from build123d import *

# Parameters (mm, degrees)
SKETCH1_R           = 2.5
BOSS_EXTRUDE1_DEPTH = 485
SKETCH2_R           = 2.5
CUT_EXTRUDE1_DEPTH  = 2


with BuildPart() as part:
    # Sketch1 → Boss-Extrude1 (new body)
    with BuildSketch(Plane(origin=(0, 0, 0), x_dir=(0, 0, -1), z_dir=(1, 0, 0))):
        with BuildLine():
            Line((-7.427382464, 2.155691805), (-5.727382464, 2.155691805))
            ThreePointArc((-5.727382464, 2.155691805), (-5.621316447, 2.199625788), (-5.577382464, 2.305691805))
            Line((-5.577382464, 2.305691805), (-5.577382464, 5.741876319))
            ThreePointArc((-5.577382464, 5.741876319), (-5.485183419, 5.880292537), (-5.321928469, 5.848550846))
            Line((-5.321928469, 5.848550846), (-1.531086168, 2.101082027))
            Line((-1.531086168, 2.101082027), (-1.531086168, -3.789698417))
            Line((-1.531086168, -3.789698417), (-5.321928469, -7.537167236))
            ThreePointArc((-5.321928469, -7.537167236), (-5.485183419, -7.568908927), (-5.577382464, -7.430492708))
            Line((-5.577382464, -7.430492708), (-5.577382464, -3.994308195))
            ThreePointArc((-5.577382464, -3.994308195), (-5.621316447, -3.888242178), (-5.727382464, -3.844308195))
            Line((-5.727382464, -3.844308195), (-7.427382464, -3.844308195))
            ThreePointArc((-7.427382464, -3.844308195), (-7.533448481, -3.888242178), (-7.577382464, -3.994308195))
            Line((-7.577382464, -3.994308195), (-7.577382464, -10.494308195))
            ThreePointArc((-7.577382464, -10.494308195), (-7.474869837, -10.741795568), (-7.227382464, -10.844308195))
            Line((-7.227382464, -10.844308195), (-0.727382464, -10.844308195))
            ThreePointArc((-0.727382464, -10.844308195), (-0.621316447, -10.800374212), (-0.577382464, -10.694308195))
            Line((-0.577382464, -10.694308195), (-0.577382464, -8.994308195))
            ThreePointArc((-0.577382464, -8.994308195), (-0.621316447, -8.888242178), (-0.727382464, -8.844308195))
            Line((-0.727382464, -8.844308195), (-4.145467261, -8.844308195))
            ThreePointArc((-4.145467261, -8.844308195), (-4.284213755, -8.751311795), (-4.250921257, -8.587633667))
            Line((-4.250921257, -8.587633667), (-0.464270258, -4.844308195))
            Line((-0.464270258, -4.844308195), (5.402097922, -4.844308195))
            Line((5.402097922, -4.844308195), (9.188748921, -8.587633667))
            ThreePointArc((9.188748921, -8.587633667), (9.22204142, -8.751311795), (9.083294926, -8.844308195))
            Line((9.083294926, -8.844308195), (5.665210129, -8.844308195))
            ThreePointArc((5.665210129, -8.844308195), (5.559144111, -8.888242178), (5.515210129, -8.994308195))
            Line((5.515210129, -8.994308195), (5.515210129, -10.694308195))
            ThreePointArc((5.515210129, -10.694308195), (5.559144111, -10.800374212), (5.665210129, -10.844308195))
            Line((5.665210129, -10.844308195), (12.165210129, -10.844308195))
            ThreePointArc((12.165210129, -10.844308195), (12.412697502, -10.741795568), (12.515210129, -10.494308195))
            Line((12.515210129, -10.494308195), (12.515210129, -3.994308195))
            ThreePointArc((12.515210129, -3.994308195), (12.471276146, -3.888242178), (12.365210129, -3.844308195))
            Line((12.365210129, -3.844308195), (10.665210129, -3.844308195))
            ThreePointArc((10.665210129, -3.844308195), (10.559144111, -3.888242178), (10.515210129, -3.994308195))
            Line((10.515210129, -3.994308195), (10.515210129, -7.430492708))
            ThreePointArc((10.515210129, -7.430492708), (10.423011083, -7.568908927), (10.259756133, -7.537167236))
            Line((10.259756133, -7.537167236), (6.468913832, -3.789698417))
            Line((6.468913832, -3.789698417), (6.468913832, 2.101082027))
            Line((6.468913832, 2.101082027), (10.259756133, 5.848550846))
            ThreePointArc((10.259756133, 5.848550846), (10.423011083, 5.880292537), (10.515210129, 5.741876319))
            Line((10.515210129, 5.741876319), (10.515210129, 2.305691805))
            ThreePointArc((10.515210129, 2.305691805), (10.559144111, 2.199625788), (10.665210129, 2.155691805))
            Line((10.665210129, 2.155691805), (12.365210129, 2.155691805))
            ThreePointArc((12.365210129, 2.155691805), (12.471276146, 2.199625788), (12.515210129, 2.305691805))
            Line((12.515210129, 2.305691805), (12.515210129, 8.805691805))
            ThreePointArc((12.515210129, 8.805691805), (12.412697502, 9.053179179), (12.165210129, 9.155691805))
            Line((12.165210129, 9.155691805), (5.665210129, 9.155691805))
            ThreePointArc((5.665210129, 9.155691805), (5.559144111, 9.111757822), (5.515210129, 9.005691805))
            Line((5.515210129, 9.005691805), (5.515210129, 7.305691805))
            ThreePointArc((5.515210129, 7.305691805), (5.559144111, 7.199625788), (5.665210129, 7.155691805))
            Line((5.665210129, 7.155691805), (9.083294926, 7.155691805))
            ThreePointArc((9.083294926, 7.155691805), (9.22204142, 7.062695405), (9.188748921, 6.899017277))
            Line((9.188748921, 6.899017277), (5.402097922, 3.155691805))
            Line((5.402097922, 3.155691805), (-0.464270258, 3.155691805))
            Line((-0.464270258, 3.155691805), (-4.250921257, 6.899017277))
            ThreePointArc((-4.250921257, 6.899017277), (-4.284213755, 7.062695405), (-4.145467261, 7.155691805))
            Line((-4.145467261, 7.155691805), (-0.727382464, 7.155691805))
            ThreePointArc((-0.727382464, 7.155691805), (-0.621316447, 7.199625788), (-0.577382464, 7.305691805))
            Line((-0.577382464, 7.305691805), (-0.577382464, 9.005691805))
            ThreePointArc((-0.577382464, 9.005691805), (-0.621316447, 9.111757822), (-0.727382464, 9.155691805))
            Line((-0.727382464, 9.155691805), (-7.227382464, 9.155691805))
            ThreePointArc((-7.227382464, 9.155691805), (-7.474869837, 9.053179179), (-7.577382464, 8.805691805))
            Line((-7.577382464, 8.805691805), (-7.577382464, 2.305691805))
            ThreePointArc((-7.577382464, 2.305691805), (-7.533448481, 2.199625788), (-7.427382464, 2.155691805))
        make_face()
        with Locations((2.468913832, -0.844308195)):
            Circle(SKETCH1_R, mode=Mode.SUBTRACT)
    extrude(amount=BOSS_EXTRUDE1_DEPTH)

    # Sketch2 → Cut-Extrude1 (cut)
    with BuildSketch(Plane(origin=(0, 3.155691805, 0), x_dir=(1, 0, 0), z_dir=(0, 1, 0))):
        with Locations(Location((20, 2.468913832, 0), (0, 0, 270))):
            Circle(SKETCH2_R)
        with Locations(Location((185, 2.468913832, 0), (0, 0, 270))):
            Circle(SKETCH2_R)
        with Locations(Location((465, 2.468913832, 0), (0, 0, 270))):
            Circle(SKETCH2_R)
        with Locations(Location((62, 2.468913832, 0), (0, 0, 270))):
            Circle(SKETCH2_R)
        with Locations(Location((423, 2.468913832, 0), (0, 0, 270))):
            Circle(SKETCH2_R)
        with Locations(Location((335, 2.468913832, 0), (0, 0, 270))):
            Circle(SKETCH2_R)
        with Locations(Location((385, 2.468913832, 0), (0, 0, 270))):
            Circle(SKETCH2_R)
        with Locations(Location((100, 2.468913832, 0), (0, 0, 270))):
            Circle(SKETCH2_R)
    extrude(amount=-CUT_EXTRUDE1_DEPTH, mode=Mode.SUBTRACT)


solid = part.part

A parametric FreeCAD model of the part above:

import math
import FreeCAD as App
import Part
import Sketcher
from FreeCAD import Vector
Q = App.Units.Quantity

doc = App.newDocument("Part")
body = doc.addObject("PartDesign::Body", "Body")

sketch1 = body.newObject("Sketcher::SketchObject", "Sketch")
sketch1.AttachmentSupport = (doc.getObject("YZ_Plane"), [""])
sketch1.MapMode = "FlatFace"
sketch1.addGeometry(Part.LineSegment(Vector(2.16, 7.43, 0), Vector(2.16, 5.73, 0)), False)
sketch1.addGeometry(Part.ArcOfCircle(Part.Circle(Vector(2.31, 5.73, 0), Vector(0, 0, 1), 0.15), math.radians(-180), math.radians(-90)), False)
sketch1.addGeometry(Part.LineSegment(Vector(2.31, 5.58, 0), Vector(5.74, 5.58, 0)), False)
sketch1.addGeometry(Part.ArcOfCircle(Part.Circle(Vector(5.74, 5.43, 0), Vector(0, 0, 1), 0.15), math.radians(-45), math.radians(90)), False)
sketch1.addGeometry(Part.LineSegment(Vector(5.85, 5.32, 0), Vector(2.1, 1.53, 0)), False)
sketch1.addGeometry(Part.LineSegment(Vector(2.1, 1.53, 0), Vector(-3.79, 1.53, 0)), False)
sketch1.addGeometry(Part.LineSegment(Vector(-3.79, 1.53, 0), Vector(-7.54, 5.32, 0)), False)
sketch1.addGeometry(Part.ArcOfCircle(Part.Circle(Vector(-7.43, 5.43, 0), Vector(0, 0, 1), 0.15), math.radians(90), math.radians(225)), False)
sketch1.addGeometry(Part.LineSegment(Vector(-7.43, 5.58, 0), Vector(-3.99, 5.58, 0)), False)
sketch1.addGeometry(Part.ArcOfCircle(Part.Circle(Vector(-3.99, 5.73, 0), Vector(0, 0, 1), 0.15), math.radians(-90), math.radians(0)), False)
sketch1.addGeometry(Part.LineSegment(Vector(-3.84, 5.73, 0), Vector(-3.84, 7.43, 0)), False)
sketch1.addGeometry(Part.ArcOfCircle(Part.Circle(Vector(-3.99, 7.43, 0), Vector(0, 0, 1), 0.15), math.radians(0), math.radians(90)), False)
sketch1.addGeometry(Part.LineSegment(Vector(-3.99, 7.58, 0), Vector(-10.49, 7.58, 0)), False)
sketch1.addGeometry(Part.ArcOfCircle(Part.Circle(Vector(-10.49, 7.23, 0), Vector(0, 0, 1), 0.35), math.radians(90), math.radians(180)), False)
sketch1.addGeometry(Part.LineSegment(Vector(-10.84, 7.23, 0), Vector(-10.84, 0.73, 0)), False)
sketch1.addGeometry(Part.ArcOfCircle(Part.Circle(Vector(-10.69, 0.73, 0), Vector(0, 0, 1), 0.15), math.radians(-180), math.radians(-90)), False)
sketch1.addGeometry(Part.LineSegment(Vector(-10.69, 0.58, 0), Vector(-8.99, 0.58, 0)), False)
sketch1.addGeometry(Part.ArcOfCircle(Part.Circle(Vector(-8.99, 0.73, 0), Vector(0, 0, 1), 0.15), math.radians(-90), math.radians(0)), False)
sketch1.addGeometry(Part.LineSegment(Vector(-8.84, 0.73, 0), Vector(-8.84, 4.15, 0)), False)
sketch1.addGeometry(Part.ArcOfCircle(Part.Circle(Vector(-8.69, 4.15, 0), Vector(0, 0, 1), 0.15), math.radians(45), math.radians(180)), False)
sketch1.addGeometry(Part.LineSegment(Vector(-8.59, 4.25, 0), Vector(-4.84, 0.46, 0)), False)
sketch1.addGeometry(Part.LineSegment(Vector(-4.84, 0.46, 0), Vector(-4.84, -5.4, 0)), False)
sketch1.addGeometry(Part.LineSegment(Vector(-4.84, -5.4, 0), Vector(-8.59, -9.19, 0)), False)
sketch1.addGeometry(Part.ArcOfCircle(Part.Circle(Vector(-8.69, -9.08, 0), Vector(0, 0, 1), 0.15), math.radians(180), math.radians(315)), False)
sketch1.addGeometry(Part.LineSegment(Vector(-8.84, -9.08, 0), Vector(-8.84, -5.67, 0)), False)
sketch1.addGeometry(Part.ArcOfCircle(Part.Circle(Vector(-8.99, -5.67, 0), Vector(0, 0, 1), 0.15), math.radians(0), math.radians(90)), False)
sketch1.addGeometry(Part.LineSegment(Vector(-8.99, -5.52, 0), Vector(-10.69, -5.52, 0)), False)
sketch1.addGeometry(Part.ArcOfCircle(Part.Circle(Vector(-10.69, -5.67, 0), Vector(0, 0, 1), 0.15), math.radians(90), math.radians(180)), False)
sketch1.addGeometry(Part.LineSegment(Vector(-10.84, -5.67, 0), Vector(-10.84, -12.17, 0)), False)
sketch1.addGeometry(Part.ArcOfCircle(Part.Circle(Vector(-10.49, -12.17, 0), Vector(0, 0, 1), 0.35), math.radians(-180), math.radians(-90)), False)
sketch1.addGeometry(Part.LineSegment(Vector(-10.49, -12.52, 0), Vector(-3.99, -12.52, 0)), False)
sketch1.addGeometry(Part.ArcOfCircle(Part.Circle(Vector(-3.99, -12.37, 0), Vector(0, 0, 1), 0.15), math.radians(-90), math.radians(0)), False)
sketch1.addGeometry(Part.LineSegment(Vector(-3.84, -12.37, 0), Vector(-3.84, -10.67, 0)), False)
sketch1.addGeometry(Part.ArcOfCircle(Part.Circle(Vector(-3.99, -10.67, 0), Vector(0, 0, 1), 0.15), math.radians(0), math.radians(90)), False)
sketch1.addGeometry(Part.LineSegment(Vector(-3.99, -10.52, 0), Vector(-7.43, -10.52, 0)), False)
sketch1.addGeometry(Part.ArcOfCircle(Part.Circle(Vector(-7.43, -10.37, 0), Vector(0, 0, 1), 0.15), math.radians(135), math.radians(270)), False)
sketch1.addGeometry(Part.LineSegment(Vector(-7.54, -10.26, 0), Vector(-3.79, -6.47, 0)), False)
sketch1.addGeometry(Part.LineSegment(Vector(-3.79, -6.47, 0), Vector(2.1, -6.47, 0)), False)
sketch1.addGeometry(Part.LineSegment(Vector(2.1, -6.47, 0), Vector(5.85, -10.26, 0)), False)
sketch1.addGeometry(Part.ArcOfCircle(Part.Circle(Vector(5.74, -10.37, 0), Vector(0, 0, 1), 0.15), math.radians(-90), math.radians(45)), False)
sketch1.addGeometry(Part.LineSegment(Vector(5.74, -10.52, 0), Vector(2.31, -10.52, 0)), False)
sketch1.addGeometry(Part.ArcOfCircle(Part.Circle(Vector(2.31, -10.67, 0), Vector(0, 0, 1), 0.15), math.radians(90), math.radians(180)), False)
sketch1.addGeometry(Part.LineSegment(Vector(2.16, -10.67, 0), Vector(2.16, -12.37, 0)), False)
sketch1.addGeometry(Part.ArcOfCircle(Part.Circle(Vector(2.31, -12.37, 0), Vector(0, 0, 1), 0.15), math.radians(-180), math.radians(-90)), False)
sketch1.addGeometry(Part.LineSegment(Vector(2.31, -12.52, 0), Vector(8.81, -12.52, 0)), False)
sketch1.addGeometry(Part.ArcOfCircle(Part.Circle(Vector(8.81, -12.17, 0), Vector(0, 0, 1), 0.35), math.radians(-90), math.radians(0)), False)
sketch1.addGeometry(Part.LineSegment(Vector(9.16, -12.17, 0), Vector(9.16, -5.67, 0)), False)
sketch1.addGeometry(Part.ArcOfCircle(Part.Circle(Vector(9.01, -5.67, 0), Vector(0, 0, 1), 0.15), math.radians(0), math.radians(90)), False)
sketch1.addGeometry(Part.LineSegment(Vector(9.01, -5.52, 0), Vector(7.31, -5.52, 0)), False)
sketch1.addGeometry(Part.ArcOfCircle(Part.Circle(Vector(7.31, -5.67, 0), Vector(0, 0, 1), 0.15), math.radians(90), math.radians(180)), False)
sketch1.addGeometry(Part.LineSegment(Vector(7.16, -5.67, 0), Vector(7.16, -9.08, 0)), False)
sketch1.addGeometry(Part.ArcOfCircle(Part.Circle(Vector(7.01, -9.08, 0), Vector(0, 0, 1), 0.15), math.radians(-135), math.radians(0)), False)
sketch1.addGeometry(Part.LineSegment(Vector(6.9, -9.19, 0), Vector(3.16, -5.4, 0)), False)
sketch1.addGeometry(Part.LineSegment(Vector(3.16, -5.4, 0), Vector(3.16, 0.46, 0)), False)
sketch1.addGeometry(Part.LineSegment(Vector(3.16, 0.46, 0), Vector(6.9, 4.25, 0)), False)
sketch1.addGeometry(Part.ArcOfCircle(Part.Circle(Vector(7.01, 4.15, 0), Vector(0, 0, 1), 0.15), math.radians(0), math.radians(135)), False)
sketch1.addGeometry(Part.LineSegment(Vector(7.16, 4.15, 0), Vector(7.16, 0.73, 0)), False)
sketch1.addGeometry(Part.ArcOfCircle(Part.Circle(Vector(7.31, 0.73, 0), Vector(0, 0, 1), 0.15), math.radians(-180), math.radians(-90)), False)
sketch1.addGeometry(Part.LineSegment(Vector(7.31, 0.58, 0), Vector(9.01, 0.58, 0)), False)
sketch1.addGeometry(Part.ArcOfCircle(Part.Circle(Vector(9.01, 0.73, 0), Vector(0, 0, 1), 0.15), math.radians(-90), math.radians(0)), False)
sketch1.addGeometry(Part.LineSegment(Vector(9.16, 0.73, 0), Vector(9.16, 7.23, 0)), False)
sketch1.addGeometry(Part.ArcOfCircle(Part.Circle(Vector(8.81, 7.23, 0), Vector(0, 0, 1), 0.35), math.radians(0), math.radians(90)), False)
sketch1.addGeometry(Part.LineSegment(Vector(8.81, 7.58, 0), Vector(2.31, 7.58, 0)), False)
sketch1.addGeometry(Part.ArcOfCircle(Part.Circle(Vector(2.31, 7.43, 0), Vector(0, 0, 1), 0.15), math.radians(90), math.radians(180)), False)
sketch1.addGeometry(Part.Circle(Vector(-0.84, -2.47, 0), Vector(0, 0, 1), 2.5), False)
sketch1.addConstraint(Sketcher.Constraint("Tangent", 0, 2, 1, 1))
sketch1.addConstraint(Sketcher.Constraint("Tangent", 1, 2, 2, 1))
sketch1.addConstraint(Sketcher.Constraint("Tangent", 2, 2, 3, 2))
sketch1.addConstraint(Sketcher.Constraint("Tangent", 3, 1, 4, 1))
sketch1.addConstraint(Sketcher.Constraint("Coincident", 4, 2, 5, 1))
sketch1.addConstraint(Sketcher.Constraint("Coincident", 5, 2, 6, 1))
sketch1.addConstraint(Sketcher.Constraint("Tangent", 6, 2, 7, 2))
sketch1.addConstraint(Sketcher.Constraint("Tangent", 7, 1, 8, 1))
sketch1.addConstraint(Sketcher.Constraint("Tangent", 8, 2, 9, 1))
sketch1.addConstraint(Sketcher.Constraint("Tangent", 9, 2, 10, 1))
sketch1.addConstraint(Sketcher.Constraint("Tangent", 10, 2, 11, 1))
sketch1.addConstraint(Sketcher.Constraint("Tangent", 11, 2, 12, 1))
sketch1.addConstraint(Sketcher.Constraint("Tangent", 12, 2, 13, 1))
sketch1.addConstraint(Sketcher.Constraint("Tangent", 13, 2, 14, 1))
sketch1.addConstraint(Sketcher.Constraint("Tangent", 14, 2, 15, 1))
sketch1.addConstraint(Sketcher.Constraint("Tangent", 15, 2, 16, 1))
sketch1.addConstraint(Sketcher.Constraint("Tangent", 16, 2, 17, 1))
sketch1.addConstraint(Sketcher.Constraint("Tangent", 17, 2, 18, 1))
sketch1.addConstraint(Sketcher.Constraint("Tangent", 18, 2, 19, 2))
sketch1.addConstraint(Sketcher.Constraint("Tangent", 19, 1, 20, 1))
sketch1.addConstraint(Sketcher.Constraint("Coincident", 20, 2, 21, 1))
sketch1.addConstraint(Sketcher.Constraint("Coincident", 21, 2, 22, 1))
sketch1.addConstraint(Sketcher.Constraint("Tangent", 22, 2, 23, 2))
sketch1.addConstraint(Sketcher.Constraint("Tangent", 23, 1, 24, 1))
sketch1.addConstraint(Sketcher.Constraint("Tangent", 24, 2, 25, 1))
sketch1.addConstraint(Sketcher.Constraint("Tangent", 25, 2, 26, 1))
sketch1.addConstraint(Sketcher.Constraint("Tangent", 26, 2, 27, 1))
sketch1.addConstraint(Sketcher.Constraint("Tangent", 27, 2, 28, 1))
sketch1.addConstraint(Sketcher.Constraint("Tangent", 28, 2, 29, 1))
sketch1.addConstraint(Sketcher.Constraint("Tangent", 29, 2, 30, 1))
sketch1.addConstraint(Sketcher.Constraint("Tangent", 30, 2, 31, 1))
sketch1.addConstraint(Sketcher.Constraint("Tangent", 31, 2, 32, 1))
sketch1.addConstraint(Sketcher.Constraint("Tangent", 32, 2, 33, 1))
sketch1.addConstraint(Sketcher.Constraint("Tangent", 33, 2, 34, 1))
sketch1.addConstraint(Sketcher.Constraint("Tangent", 34, 2, 35, 2))
sketch1.addConstraint(Sketcher.Constraint("Tangent", 35, 1, 36, 1))
sketch1.addConstraint(Sketcher.Constraint("Coincident", 36, 2, 37, 1))
sketch1.addConstraint(Sketcher.Constraint("Coincident", 37, 2, 38, 1))
sketch1.addConstraint(Sketcher.Constraint("Tangent", 38, 2, 39, 2))
sketch1.addConstraint(Sketcher.Constraint("Tangent", 39, 1, 40, 1))
sketch1.addConstraint(Sketcher.Constraint("Tangent", 40, 2, 41, 1))
sketch1.addConstraint(Sketcher.Constraint("Tangent", 41, 2, 42, 1))
sketch1.addConstraint(Sketcher.Constraint("Tangent", 42, 2, 43, 1))
sketch1.addConstraint(Sketcher.Constraint("Tangent", 43, 2, 44, 1))
sketch1.addConstraint(Sketcher.Constraint("Tangent", 44, 2, 45, 1))
sketch1.addConstraint(Sketcher.Constraint("Tangent", 45, 2, 46, 1))
sketch1.addConstraint(Sketcher.Constraint("Tangent", 46, 2, 47, 1))
sketch1.addConstraint(Sketcher.Constraint("Tangent", 47, 2, 48, 1))
sketch1.addConstraint(Sketcher.Constraint("Tangent", 48, 2, 49, 1))
sketch1.addConstraint(Sketcher.Constraint("Tangent", 49, 2, 50, 1))
sketch1.addConstraint(Sketcher.Constraint("Tangent", 50, 2, 51, 2))
sketch1.addConstraint(Sketcher.Constraint("Tangent", 51, 1, 52, 1))
sketch1.addConstraint(Sketcher.Constraint("Coincident", 52, 2, 53, 1))
sketch1.addConstraint(Sketcher.Constraint("Coincident", 53, 2, 54, 1))
sketch1.addConstraint(Sketcher.Constraint("Tangent", 54, 2, 55, 2))
sketch1.addConstraint(Sketcher.Constraint("Tangent", 55, 1, 56, 1))
sketch1.addConstraint(Sketcher.Constraint("Tangent", 56, 2, 57, 1))
sketch1.addConstraint(Sketcher.Constraint("Tangent", 57, 2, 58, 1))
sketch1.addConstraint(Sketcher.Constraint("Tangent", 58, 2, 59, 1))
sketch1.addConstraint(Sketcher.Constraint("Tangent", 59, 2, 60, 1))
sketch1.addConstraint(Sketcher.Constraint("Tangent", 60, 2, 61, 1))
sketch1.addConstraint(Sketcher.Constraint("Tangent", 61, 2, 62, 1))
sketch1.addConstraint(Sketcher.Constraint("Tangent", 62, 2, 63, 1))
sketch1.addConstraint(Sketcher.Constraint("Tangent", 63, 2, 0, 1))
sketch1.addConstraint(Sketcher.Constraint("Vertical", 0))
sketch1.addConstraint(Sketcher.Constraint("Horizontal", 2))
sketch1.addConstraint(Sketcher.Constraint("Horizontal", 5))
sketch1.addConstraint(Sketcher.Constraint("Horizontal", 8))
sketch1.addConstraint(Sketcher.Constraint("Vertical", 10))
sketch1.addConstraint(Sketcher.Constraint("Horizontal", 12))
sketch1.addConstraint(Sketcher.Constraint("Vertical", 14))
sketch1.addConstraint(Sketcher.Constraint("Horizontal", 16))
sketch1.addConstraint(Sketcher.Constraint("Vertical", 18))
sketch1.addConstraint(Sketcher.Constraint("Vertical", 21))
sketch1.addConstraint(Sketcher.Constraint("Vertical", 24))
sketch1.addConstraint(Sketcher.Constraint("Horizontal", 26))
sketch1.addConstraint(Sketcher.Constraint("Vertical", 28))
sketch1.addConstraint(Sketcher.Constraint("Horizontal", 30))
sketch1.addConstraint(Sketcher.Constraint("Vertical", 32))
sketch1.addConstraint(Sketcher.Constraint("Horizontal", 34))
sketch1.addConstraint(Sketcher.Constraint("Horizontal", 37))
sketch1.addConstraint(Sketcher.Constraint("Horizontal", 40))
sketch1.addConstraint(Sketcher.Constraint("Vertical", 42))
sketch1.addConstraint(Sketcher.Constraint("Horizontal", 44))
sketch1.addConstraint(Sketcher.Constraint("Vertical", 46))
sketch1.addConstraint(Sketcher.Constraint("Horizontal", 48))
sketch1.addConstraint(Sketcher.Constraint("Vertical", 50))
sketch1.addConstraint(Sketcher.Constraint("Vertical", 53))
sketch1.addConstraint(Sketcher.Constraint("Vertical", 56))
sketch1.addConstraint(Sketcher.Constraint("Horizontal", 58))
sketch1.addConstraint(Sketcher.Constraint("Vertical", 60))
sketch1.addConstraint(Sketcher.Constraint("Horizontal", 62))
sketch1.addConstraint(Sketcher.Constraint("Equal", 1, 3))
sketch1.addConstraint(Sketcher.Constraint("Equal", 3, 7))
sketch1.addConstraint(Sketcher.Constraint("Equal", 7, 9))
sketch1.addConstraint(Sketcher.Constraint("Equal", 9, 11))
sketch1.addConstraint(Sketcher.Constraint("Equal", 11, 15))
sketch1.addConstraint(Sketcher.Constraint("Equal", 15, 17))
sketch1.addConstraint(Sketcher.Constraint("Equal", 17, 19))
sketch1.addConstraint(Sketcher.Constraint("Equal", 19, 23))
sketch1.addConstraint(Sketcher.Constraint("Equal", 23, 25))
sketch1.addConstraint(Sketcher.Constraint("Equal", 25, 27))
sketch1.addConstraint(Sketcher.Constraint("Equal", 13, 29))
sketch1.addConstraint(Sketcher.Constraint("Equal", 27, 31))
sketch1.addConstraint(Sketcher.Constraint("Equal", 31, 33))
sketch1.addConstraint(Sketcher.Constraint("Equal", 33, 35))
sketch1.addConstraint(Sketcher.Constraint("Equal", 35, 39))
sketch1.addConstraint(Sketcher.Constraint("Equal", 39, 41))
sketch1.addConstraint(Sketcher.Constraint("Equal", 41, 43))
sketch1.addConstraint(Sketcher.Constraint("Equal", 29, 45))
sketch1.addConstraint(Sketcher.Constraint("Equal", 43, 47))
sketch1.addConstraint(Sketcher.Constraint("Equal", 47, 49))
sketch1.addConstraint(Sketcher.Constraint("Equal", 49, 51))
sketch1.addConstraint(Sketcher.Constraint("Equal", 51, 55))
sketch1.addConstraint(Sketcher.Constraint("Equal", 55, 57))
sketch1.addConstraint(Sketcher.Constraint("Equal", 57, 59))
sketch1.addConstraint(Sketcher.Constraint("Equal", 45, 61))
sketch1.addConstraint(Sketcher.Constraint("Equal", 59, 63))
sketch1.addConstraint(Sketcher.Constraint("Parallel", 6, 20))
sketch1.addConstraint(Sketcher.Constraint("Parallel", 4, 22))
sketch1.addConstraint(Sketcher.Constraint("Parallel", 22, 36))
sketch1.addConstraint(Sketcher.Constraint("Parallel", 20, 38))
sketch1.addConstraint(Sketcher.Constraint("Parallel", 38, 52))
sketch1.addConstraint(Sketcher.Constraint("Parallel", 36, 54))
sketch1.addConstraint(Sketcher.Constraint("Horizontal", 3, 3, 7, 3))
sketch1.addConstraint(Sketcher.Constraint("Horizontal", 35, 3, 39, 3))
sketch1.addConstraint(Sketcher.Constraint("Horizontal", 31, 3, 43, 3))
sketch1.addConstraint(Sketcher.Constraint("Horizontal", 27, 3, 47, 3))
sketch1.addConstraint(Sketcher.Constraint("Horizontal", 23, 3, 51, 3))
sketch1.addConstraint(Sketcher.Constraint("Horizontal", 19, 3, 55, 3))
sketch1.addConstraint(Sketcher.Constraint("Horizontal", 17, 3, 57, 3))
sketch1.addConstraint(Sketcher.Constraint("Horizontal", 13, 3, 61, 3))
sketch1.addConstraint(Sketcher.Constraint("Horizontal", 3, 1, 6, 2))
sketch1.addConstraint(Sketcher.Constraint("Horizontal", 21, 2, 52, 2))
sketch1.addConstraint(Sketcher.Constraint("Horizontal", 20, 2, 53, 2))
sketch1.addConstraint(Sketcher.Constraint("Vertical", 19, 3, 23, 3))
sketch1.addConstraint(Sketcher.Constraint("Vertical", 15, 3, 27, 3))
sketch1.addConstraint(Sketcher.Constraint("Vertical", 11, 3, 31, 3))
sketch1.addConstraint(Sketcher.Constraint("Vertical", 7, 3, 35, 3))
sketch1.addConstraint(Sketcher.Constraint("Vertical", 3, 3, 39, 3))
sketch1.addConstraint(Sketcher.Constraint("Vertical", 1, 3, 41, 3))
sketch1.addConstraint(Sketcher.Constraint("Vertical", 47, 3, 59, 3))
sketch1.addConstraint(Sketcher.Constraint("Vertical", 5, 2, 36, 2))
sketch1.addConstraint(Sketcher.Constraint("Equal", 2, 8))
sketch1.addConstraint(Sketcher.Constraint("Equal", 30, 44))
sketch1.addConstraint(Sketcher.Constraint("Equal", 26, 48))
sketch1.addConstraint(Sketcher.Constraint("Equal", 58, 0))
sketch1.addConstraint(Sketcher.Constraint("Equal", 62, 14))
sketch1.addConstraint(Sketcher.Constraint("Equal", 18, 24))
sketch1.addConstraint(Sketcher.Constraint("Equal", 14, 28))
sketch1.addConstraint(Sketcher.Constraint("Equal", 10, 32))
sketch1.addConstraint(Sketcher.Constraint("Diameter", 64, Q("5 mm")))
sketch1.addConstraint(Sketcher.Constraint("Radius", 1, Q("0.15 mm")))
sketch1.addConstraint(Sketcher.Constraint("Radius", 13, Q("0.35 mm")))
sketch1.addConstraint(Sketcher.Constraint("DistanceX", 12, 2, 12, 1, Q("6.5 mm")))
sketch1.addConstraint(Sketcher.Constraint("DistanceX", 16, 1, 16, 2, Q("1.7 mm")))
sketch1.addConstraint(Sketcher.Constraint("DistanceX", 5, 2, 5, 1, Q("5.89078 mm")))
sketch1.addConstraint(Sketcher.Constraint("DistanceY", 21, 2, 21, 1, Q("5.866368 mm")))
sketch1.addConstraint(Sketcher.Constraint("DistanceX", 5, 2, -1, 1, Q("3.789698 mm")))
sketch1.addConstraint(Sketcher.Constraint("Distance", 4, Q("5.330479 mm")))
sketch1.addConstraint(Sketcher.Constraint("DistanceX", 2, 1, 2, 2, Q("3.436185 mm")))
sketch1.addConstraint(Sketcher.Constraint("DistanceY", 18, 1, 18, 2, Q("3.418085 mm")))
sketch1.addConstraint(Sketcher.Constraint("DistanceX", -1, 1, 1, 3, Q("2.305692 mm")))
sketch1.addConstraint(Sketcher.Constraint("DistanceY", 25, 3, -1, 1, Q("5.66521 mm")))
sketch1.addConstraint(Sketcher.Constraint("DistanceX", 64, 3, -1, 1, Q("0.844308 mm")))
sketch1.addConstraint(Sketcher.Constraint("DistanceY", -1, 1, 3, 1, Q("5.321928 mm")))
sketch1.addConstraint(Sketcher.Constraint("DistanceY", 64, 3, -1, 1, Q("2.468914 mm")))
pad1 = body.newObject("PartDesign::Pad", "Pad")
pad1.Profile = sketch1
pad1.Length = 485

sketch2 = body.newObject("Sketcher::SketchObject", "Sketch001")
sketch2.AttachmentSupport = (doc.getObject("XZ_Plane"), [""])
sketch2.MapMode = "FlatFace"
sketch2.AttachmentOffset = App.Placement(Vector(0, 0, -3.155692), App.Rotation())
sketch2.addGeometry(Part.Circle(Vector(20, -2.5, 0), Vector(0, 0, 1), 2.5), False)
sketch2.addGeometry(Part.Circle(Vector(185, -2.5, 0), Vector(0, 0, 1), 2.5), False)
sketch2.addGeometry(Part.Circle(Vector(465, -2.5, 0), Vector(0, 0, 1), 2.5), False)
sketch2.addGeometry(Part.Circle(Vector(62, -2.5, 0), Vector(0, 0, 1), 2.5), False)
sketch2.addGeometry(Part.Circle(Vector(423, -2.5, 0), Vector(0, 0, 1), 2.5), False)
sketch2.addGeometry(Part.Circle(Vector(335, -2.5, 0), Vector(0, 0, 1), 2.5), False)
sketch2.addGeometry(Part.Circle(Vector(385, -2.5, 0), Vector(0, 0, 1), 2.5), False)
sketch2.addGeometry(Part.Circle(Vector(100, -2.5, 0), Vector(0, 0, 1), 2.5), False)
sketch2.addConstraint(Sketcher.Constraint("Equal", 0, 1))
sketch2.addConstraint(Sketcher.Constraint("Equal", 1, 2))
sketch2.addConstraint(Sketcher.Constraint("Equal", 2, 3))
sketch2.addConstraint(Sketcher.Constraint("Equal", 3, 4))
sketch2.addConstraint(Sketcher.Constraint("Equal", 4, 5))
sketch2.addConstraint(Sketcher.Constraint("Equal", 5, 6))
sketch2.addConstraint(Sketcher.Constraint("Equal", 6, 7))
sketch2.addConstraint(Sketcher.Constraint("Horizontal", 0, 3, 1, 3))
sketch2.addConstraint(Sketcher.Constraint("Horizontal", 1, 3, 2, 3))
sketch2.addConstraint(Sketcher.Constraint("Horizontal", 2, 3, 3, 3))
sketch2.addConstraint(Sketcher.Constraint("Horizontal", 3, 3, 4, 3))
sketch2.addConstraint(Sketcher.Constraint("Horizontal", 4, 3, 5, 3))
sketch2.addConstraint(Sketcher.Constraint("Horizontal", 5, 3, 6, 3))
sketch2.addConstraint(Sketcher.Constraint("Horizontal", 6, 3, 7, 3))
sketch2.addConstraint(Sketcher.Constraint("Diameter", 0, Q("5 mm")))
sketch2.addConstraint(Sketcher.Constraint("DistanceX", -1, 1, 0, 3, Q("20 mm")))
sketch2.addConstraint(Sketcher.Constraint("DistanceX", -1, 1, 1, 3, Q("185 mm")))
sketch2.addConstraint(Sketcher.Constraint("DistanceX", -1, 1, 2, 3, Q("465 mm")))
sketch2.addConstraint(Sketcher.Constraint("DistanceX", -1, 1, 3, 3, Q("62 mm")))
sketch2.addConstraint(Sketcher.Constraint("DistanceX", -1, 1, 4, 3, Q("423 mm")))
sketch2.addConstraint(Sketcher.Constraint("DistanceX", -1, 1, 5, 3, Q("335 mm")))
sketch2.addConstraint(Sketcher.Constraint("DistanceX", -1, 1, 6, 3, Q("385 mm")))
sketch2.addConstraint(Sketcher.Constraint("DistanceX", -1, 1, 7, 3, Q("100 mm")))
sketch2.addConstraint(Sketcher.Constraint("DistanceY", 0, 3, -1, 1, Q("2.468914 mm")))
pocket1 = body.newObject("PartDesign::Pocket", "Pocket")
pocket1.Profile = sketch2
pocket1.Length = 2
pocket1.Reversed = True

doc.recompute()
